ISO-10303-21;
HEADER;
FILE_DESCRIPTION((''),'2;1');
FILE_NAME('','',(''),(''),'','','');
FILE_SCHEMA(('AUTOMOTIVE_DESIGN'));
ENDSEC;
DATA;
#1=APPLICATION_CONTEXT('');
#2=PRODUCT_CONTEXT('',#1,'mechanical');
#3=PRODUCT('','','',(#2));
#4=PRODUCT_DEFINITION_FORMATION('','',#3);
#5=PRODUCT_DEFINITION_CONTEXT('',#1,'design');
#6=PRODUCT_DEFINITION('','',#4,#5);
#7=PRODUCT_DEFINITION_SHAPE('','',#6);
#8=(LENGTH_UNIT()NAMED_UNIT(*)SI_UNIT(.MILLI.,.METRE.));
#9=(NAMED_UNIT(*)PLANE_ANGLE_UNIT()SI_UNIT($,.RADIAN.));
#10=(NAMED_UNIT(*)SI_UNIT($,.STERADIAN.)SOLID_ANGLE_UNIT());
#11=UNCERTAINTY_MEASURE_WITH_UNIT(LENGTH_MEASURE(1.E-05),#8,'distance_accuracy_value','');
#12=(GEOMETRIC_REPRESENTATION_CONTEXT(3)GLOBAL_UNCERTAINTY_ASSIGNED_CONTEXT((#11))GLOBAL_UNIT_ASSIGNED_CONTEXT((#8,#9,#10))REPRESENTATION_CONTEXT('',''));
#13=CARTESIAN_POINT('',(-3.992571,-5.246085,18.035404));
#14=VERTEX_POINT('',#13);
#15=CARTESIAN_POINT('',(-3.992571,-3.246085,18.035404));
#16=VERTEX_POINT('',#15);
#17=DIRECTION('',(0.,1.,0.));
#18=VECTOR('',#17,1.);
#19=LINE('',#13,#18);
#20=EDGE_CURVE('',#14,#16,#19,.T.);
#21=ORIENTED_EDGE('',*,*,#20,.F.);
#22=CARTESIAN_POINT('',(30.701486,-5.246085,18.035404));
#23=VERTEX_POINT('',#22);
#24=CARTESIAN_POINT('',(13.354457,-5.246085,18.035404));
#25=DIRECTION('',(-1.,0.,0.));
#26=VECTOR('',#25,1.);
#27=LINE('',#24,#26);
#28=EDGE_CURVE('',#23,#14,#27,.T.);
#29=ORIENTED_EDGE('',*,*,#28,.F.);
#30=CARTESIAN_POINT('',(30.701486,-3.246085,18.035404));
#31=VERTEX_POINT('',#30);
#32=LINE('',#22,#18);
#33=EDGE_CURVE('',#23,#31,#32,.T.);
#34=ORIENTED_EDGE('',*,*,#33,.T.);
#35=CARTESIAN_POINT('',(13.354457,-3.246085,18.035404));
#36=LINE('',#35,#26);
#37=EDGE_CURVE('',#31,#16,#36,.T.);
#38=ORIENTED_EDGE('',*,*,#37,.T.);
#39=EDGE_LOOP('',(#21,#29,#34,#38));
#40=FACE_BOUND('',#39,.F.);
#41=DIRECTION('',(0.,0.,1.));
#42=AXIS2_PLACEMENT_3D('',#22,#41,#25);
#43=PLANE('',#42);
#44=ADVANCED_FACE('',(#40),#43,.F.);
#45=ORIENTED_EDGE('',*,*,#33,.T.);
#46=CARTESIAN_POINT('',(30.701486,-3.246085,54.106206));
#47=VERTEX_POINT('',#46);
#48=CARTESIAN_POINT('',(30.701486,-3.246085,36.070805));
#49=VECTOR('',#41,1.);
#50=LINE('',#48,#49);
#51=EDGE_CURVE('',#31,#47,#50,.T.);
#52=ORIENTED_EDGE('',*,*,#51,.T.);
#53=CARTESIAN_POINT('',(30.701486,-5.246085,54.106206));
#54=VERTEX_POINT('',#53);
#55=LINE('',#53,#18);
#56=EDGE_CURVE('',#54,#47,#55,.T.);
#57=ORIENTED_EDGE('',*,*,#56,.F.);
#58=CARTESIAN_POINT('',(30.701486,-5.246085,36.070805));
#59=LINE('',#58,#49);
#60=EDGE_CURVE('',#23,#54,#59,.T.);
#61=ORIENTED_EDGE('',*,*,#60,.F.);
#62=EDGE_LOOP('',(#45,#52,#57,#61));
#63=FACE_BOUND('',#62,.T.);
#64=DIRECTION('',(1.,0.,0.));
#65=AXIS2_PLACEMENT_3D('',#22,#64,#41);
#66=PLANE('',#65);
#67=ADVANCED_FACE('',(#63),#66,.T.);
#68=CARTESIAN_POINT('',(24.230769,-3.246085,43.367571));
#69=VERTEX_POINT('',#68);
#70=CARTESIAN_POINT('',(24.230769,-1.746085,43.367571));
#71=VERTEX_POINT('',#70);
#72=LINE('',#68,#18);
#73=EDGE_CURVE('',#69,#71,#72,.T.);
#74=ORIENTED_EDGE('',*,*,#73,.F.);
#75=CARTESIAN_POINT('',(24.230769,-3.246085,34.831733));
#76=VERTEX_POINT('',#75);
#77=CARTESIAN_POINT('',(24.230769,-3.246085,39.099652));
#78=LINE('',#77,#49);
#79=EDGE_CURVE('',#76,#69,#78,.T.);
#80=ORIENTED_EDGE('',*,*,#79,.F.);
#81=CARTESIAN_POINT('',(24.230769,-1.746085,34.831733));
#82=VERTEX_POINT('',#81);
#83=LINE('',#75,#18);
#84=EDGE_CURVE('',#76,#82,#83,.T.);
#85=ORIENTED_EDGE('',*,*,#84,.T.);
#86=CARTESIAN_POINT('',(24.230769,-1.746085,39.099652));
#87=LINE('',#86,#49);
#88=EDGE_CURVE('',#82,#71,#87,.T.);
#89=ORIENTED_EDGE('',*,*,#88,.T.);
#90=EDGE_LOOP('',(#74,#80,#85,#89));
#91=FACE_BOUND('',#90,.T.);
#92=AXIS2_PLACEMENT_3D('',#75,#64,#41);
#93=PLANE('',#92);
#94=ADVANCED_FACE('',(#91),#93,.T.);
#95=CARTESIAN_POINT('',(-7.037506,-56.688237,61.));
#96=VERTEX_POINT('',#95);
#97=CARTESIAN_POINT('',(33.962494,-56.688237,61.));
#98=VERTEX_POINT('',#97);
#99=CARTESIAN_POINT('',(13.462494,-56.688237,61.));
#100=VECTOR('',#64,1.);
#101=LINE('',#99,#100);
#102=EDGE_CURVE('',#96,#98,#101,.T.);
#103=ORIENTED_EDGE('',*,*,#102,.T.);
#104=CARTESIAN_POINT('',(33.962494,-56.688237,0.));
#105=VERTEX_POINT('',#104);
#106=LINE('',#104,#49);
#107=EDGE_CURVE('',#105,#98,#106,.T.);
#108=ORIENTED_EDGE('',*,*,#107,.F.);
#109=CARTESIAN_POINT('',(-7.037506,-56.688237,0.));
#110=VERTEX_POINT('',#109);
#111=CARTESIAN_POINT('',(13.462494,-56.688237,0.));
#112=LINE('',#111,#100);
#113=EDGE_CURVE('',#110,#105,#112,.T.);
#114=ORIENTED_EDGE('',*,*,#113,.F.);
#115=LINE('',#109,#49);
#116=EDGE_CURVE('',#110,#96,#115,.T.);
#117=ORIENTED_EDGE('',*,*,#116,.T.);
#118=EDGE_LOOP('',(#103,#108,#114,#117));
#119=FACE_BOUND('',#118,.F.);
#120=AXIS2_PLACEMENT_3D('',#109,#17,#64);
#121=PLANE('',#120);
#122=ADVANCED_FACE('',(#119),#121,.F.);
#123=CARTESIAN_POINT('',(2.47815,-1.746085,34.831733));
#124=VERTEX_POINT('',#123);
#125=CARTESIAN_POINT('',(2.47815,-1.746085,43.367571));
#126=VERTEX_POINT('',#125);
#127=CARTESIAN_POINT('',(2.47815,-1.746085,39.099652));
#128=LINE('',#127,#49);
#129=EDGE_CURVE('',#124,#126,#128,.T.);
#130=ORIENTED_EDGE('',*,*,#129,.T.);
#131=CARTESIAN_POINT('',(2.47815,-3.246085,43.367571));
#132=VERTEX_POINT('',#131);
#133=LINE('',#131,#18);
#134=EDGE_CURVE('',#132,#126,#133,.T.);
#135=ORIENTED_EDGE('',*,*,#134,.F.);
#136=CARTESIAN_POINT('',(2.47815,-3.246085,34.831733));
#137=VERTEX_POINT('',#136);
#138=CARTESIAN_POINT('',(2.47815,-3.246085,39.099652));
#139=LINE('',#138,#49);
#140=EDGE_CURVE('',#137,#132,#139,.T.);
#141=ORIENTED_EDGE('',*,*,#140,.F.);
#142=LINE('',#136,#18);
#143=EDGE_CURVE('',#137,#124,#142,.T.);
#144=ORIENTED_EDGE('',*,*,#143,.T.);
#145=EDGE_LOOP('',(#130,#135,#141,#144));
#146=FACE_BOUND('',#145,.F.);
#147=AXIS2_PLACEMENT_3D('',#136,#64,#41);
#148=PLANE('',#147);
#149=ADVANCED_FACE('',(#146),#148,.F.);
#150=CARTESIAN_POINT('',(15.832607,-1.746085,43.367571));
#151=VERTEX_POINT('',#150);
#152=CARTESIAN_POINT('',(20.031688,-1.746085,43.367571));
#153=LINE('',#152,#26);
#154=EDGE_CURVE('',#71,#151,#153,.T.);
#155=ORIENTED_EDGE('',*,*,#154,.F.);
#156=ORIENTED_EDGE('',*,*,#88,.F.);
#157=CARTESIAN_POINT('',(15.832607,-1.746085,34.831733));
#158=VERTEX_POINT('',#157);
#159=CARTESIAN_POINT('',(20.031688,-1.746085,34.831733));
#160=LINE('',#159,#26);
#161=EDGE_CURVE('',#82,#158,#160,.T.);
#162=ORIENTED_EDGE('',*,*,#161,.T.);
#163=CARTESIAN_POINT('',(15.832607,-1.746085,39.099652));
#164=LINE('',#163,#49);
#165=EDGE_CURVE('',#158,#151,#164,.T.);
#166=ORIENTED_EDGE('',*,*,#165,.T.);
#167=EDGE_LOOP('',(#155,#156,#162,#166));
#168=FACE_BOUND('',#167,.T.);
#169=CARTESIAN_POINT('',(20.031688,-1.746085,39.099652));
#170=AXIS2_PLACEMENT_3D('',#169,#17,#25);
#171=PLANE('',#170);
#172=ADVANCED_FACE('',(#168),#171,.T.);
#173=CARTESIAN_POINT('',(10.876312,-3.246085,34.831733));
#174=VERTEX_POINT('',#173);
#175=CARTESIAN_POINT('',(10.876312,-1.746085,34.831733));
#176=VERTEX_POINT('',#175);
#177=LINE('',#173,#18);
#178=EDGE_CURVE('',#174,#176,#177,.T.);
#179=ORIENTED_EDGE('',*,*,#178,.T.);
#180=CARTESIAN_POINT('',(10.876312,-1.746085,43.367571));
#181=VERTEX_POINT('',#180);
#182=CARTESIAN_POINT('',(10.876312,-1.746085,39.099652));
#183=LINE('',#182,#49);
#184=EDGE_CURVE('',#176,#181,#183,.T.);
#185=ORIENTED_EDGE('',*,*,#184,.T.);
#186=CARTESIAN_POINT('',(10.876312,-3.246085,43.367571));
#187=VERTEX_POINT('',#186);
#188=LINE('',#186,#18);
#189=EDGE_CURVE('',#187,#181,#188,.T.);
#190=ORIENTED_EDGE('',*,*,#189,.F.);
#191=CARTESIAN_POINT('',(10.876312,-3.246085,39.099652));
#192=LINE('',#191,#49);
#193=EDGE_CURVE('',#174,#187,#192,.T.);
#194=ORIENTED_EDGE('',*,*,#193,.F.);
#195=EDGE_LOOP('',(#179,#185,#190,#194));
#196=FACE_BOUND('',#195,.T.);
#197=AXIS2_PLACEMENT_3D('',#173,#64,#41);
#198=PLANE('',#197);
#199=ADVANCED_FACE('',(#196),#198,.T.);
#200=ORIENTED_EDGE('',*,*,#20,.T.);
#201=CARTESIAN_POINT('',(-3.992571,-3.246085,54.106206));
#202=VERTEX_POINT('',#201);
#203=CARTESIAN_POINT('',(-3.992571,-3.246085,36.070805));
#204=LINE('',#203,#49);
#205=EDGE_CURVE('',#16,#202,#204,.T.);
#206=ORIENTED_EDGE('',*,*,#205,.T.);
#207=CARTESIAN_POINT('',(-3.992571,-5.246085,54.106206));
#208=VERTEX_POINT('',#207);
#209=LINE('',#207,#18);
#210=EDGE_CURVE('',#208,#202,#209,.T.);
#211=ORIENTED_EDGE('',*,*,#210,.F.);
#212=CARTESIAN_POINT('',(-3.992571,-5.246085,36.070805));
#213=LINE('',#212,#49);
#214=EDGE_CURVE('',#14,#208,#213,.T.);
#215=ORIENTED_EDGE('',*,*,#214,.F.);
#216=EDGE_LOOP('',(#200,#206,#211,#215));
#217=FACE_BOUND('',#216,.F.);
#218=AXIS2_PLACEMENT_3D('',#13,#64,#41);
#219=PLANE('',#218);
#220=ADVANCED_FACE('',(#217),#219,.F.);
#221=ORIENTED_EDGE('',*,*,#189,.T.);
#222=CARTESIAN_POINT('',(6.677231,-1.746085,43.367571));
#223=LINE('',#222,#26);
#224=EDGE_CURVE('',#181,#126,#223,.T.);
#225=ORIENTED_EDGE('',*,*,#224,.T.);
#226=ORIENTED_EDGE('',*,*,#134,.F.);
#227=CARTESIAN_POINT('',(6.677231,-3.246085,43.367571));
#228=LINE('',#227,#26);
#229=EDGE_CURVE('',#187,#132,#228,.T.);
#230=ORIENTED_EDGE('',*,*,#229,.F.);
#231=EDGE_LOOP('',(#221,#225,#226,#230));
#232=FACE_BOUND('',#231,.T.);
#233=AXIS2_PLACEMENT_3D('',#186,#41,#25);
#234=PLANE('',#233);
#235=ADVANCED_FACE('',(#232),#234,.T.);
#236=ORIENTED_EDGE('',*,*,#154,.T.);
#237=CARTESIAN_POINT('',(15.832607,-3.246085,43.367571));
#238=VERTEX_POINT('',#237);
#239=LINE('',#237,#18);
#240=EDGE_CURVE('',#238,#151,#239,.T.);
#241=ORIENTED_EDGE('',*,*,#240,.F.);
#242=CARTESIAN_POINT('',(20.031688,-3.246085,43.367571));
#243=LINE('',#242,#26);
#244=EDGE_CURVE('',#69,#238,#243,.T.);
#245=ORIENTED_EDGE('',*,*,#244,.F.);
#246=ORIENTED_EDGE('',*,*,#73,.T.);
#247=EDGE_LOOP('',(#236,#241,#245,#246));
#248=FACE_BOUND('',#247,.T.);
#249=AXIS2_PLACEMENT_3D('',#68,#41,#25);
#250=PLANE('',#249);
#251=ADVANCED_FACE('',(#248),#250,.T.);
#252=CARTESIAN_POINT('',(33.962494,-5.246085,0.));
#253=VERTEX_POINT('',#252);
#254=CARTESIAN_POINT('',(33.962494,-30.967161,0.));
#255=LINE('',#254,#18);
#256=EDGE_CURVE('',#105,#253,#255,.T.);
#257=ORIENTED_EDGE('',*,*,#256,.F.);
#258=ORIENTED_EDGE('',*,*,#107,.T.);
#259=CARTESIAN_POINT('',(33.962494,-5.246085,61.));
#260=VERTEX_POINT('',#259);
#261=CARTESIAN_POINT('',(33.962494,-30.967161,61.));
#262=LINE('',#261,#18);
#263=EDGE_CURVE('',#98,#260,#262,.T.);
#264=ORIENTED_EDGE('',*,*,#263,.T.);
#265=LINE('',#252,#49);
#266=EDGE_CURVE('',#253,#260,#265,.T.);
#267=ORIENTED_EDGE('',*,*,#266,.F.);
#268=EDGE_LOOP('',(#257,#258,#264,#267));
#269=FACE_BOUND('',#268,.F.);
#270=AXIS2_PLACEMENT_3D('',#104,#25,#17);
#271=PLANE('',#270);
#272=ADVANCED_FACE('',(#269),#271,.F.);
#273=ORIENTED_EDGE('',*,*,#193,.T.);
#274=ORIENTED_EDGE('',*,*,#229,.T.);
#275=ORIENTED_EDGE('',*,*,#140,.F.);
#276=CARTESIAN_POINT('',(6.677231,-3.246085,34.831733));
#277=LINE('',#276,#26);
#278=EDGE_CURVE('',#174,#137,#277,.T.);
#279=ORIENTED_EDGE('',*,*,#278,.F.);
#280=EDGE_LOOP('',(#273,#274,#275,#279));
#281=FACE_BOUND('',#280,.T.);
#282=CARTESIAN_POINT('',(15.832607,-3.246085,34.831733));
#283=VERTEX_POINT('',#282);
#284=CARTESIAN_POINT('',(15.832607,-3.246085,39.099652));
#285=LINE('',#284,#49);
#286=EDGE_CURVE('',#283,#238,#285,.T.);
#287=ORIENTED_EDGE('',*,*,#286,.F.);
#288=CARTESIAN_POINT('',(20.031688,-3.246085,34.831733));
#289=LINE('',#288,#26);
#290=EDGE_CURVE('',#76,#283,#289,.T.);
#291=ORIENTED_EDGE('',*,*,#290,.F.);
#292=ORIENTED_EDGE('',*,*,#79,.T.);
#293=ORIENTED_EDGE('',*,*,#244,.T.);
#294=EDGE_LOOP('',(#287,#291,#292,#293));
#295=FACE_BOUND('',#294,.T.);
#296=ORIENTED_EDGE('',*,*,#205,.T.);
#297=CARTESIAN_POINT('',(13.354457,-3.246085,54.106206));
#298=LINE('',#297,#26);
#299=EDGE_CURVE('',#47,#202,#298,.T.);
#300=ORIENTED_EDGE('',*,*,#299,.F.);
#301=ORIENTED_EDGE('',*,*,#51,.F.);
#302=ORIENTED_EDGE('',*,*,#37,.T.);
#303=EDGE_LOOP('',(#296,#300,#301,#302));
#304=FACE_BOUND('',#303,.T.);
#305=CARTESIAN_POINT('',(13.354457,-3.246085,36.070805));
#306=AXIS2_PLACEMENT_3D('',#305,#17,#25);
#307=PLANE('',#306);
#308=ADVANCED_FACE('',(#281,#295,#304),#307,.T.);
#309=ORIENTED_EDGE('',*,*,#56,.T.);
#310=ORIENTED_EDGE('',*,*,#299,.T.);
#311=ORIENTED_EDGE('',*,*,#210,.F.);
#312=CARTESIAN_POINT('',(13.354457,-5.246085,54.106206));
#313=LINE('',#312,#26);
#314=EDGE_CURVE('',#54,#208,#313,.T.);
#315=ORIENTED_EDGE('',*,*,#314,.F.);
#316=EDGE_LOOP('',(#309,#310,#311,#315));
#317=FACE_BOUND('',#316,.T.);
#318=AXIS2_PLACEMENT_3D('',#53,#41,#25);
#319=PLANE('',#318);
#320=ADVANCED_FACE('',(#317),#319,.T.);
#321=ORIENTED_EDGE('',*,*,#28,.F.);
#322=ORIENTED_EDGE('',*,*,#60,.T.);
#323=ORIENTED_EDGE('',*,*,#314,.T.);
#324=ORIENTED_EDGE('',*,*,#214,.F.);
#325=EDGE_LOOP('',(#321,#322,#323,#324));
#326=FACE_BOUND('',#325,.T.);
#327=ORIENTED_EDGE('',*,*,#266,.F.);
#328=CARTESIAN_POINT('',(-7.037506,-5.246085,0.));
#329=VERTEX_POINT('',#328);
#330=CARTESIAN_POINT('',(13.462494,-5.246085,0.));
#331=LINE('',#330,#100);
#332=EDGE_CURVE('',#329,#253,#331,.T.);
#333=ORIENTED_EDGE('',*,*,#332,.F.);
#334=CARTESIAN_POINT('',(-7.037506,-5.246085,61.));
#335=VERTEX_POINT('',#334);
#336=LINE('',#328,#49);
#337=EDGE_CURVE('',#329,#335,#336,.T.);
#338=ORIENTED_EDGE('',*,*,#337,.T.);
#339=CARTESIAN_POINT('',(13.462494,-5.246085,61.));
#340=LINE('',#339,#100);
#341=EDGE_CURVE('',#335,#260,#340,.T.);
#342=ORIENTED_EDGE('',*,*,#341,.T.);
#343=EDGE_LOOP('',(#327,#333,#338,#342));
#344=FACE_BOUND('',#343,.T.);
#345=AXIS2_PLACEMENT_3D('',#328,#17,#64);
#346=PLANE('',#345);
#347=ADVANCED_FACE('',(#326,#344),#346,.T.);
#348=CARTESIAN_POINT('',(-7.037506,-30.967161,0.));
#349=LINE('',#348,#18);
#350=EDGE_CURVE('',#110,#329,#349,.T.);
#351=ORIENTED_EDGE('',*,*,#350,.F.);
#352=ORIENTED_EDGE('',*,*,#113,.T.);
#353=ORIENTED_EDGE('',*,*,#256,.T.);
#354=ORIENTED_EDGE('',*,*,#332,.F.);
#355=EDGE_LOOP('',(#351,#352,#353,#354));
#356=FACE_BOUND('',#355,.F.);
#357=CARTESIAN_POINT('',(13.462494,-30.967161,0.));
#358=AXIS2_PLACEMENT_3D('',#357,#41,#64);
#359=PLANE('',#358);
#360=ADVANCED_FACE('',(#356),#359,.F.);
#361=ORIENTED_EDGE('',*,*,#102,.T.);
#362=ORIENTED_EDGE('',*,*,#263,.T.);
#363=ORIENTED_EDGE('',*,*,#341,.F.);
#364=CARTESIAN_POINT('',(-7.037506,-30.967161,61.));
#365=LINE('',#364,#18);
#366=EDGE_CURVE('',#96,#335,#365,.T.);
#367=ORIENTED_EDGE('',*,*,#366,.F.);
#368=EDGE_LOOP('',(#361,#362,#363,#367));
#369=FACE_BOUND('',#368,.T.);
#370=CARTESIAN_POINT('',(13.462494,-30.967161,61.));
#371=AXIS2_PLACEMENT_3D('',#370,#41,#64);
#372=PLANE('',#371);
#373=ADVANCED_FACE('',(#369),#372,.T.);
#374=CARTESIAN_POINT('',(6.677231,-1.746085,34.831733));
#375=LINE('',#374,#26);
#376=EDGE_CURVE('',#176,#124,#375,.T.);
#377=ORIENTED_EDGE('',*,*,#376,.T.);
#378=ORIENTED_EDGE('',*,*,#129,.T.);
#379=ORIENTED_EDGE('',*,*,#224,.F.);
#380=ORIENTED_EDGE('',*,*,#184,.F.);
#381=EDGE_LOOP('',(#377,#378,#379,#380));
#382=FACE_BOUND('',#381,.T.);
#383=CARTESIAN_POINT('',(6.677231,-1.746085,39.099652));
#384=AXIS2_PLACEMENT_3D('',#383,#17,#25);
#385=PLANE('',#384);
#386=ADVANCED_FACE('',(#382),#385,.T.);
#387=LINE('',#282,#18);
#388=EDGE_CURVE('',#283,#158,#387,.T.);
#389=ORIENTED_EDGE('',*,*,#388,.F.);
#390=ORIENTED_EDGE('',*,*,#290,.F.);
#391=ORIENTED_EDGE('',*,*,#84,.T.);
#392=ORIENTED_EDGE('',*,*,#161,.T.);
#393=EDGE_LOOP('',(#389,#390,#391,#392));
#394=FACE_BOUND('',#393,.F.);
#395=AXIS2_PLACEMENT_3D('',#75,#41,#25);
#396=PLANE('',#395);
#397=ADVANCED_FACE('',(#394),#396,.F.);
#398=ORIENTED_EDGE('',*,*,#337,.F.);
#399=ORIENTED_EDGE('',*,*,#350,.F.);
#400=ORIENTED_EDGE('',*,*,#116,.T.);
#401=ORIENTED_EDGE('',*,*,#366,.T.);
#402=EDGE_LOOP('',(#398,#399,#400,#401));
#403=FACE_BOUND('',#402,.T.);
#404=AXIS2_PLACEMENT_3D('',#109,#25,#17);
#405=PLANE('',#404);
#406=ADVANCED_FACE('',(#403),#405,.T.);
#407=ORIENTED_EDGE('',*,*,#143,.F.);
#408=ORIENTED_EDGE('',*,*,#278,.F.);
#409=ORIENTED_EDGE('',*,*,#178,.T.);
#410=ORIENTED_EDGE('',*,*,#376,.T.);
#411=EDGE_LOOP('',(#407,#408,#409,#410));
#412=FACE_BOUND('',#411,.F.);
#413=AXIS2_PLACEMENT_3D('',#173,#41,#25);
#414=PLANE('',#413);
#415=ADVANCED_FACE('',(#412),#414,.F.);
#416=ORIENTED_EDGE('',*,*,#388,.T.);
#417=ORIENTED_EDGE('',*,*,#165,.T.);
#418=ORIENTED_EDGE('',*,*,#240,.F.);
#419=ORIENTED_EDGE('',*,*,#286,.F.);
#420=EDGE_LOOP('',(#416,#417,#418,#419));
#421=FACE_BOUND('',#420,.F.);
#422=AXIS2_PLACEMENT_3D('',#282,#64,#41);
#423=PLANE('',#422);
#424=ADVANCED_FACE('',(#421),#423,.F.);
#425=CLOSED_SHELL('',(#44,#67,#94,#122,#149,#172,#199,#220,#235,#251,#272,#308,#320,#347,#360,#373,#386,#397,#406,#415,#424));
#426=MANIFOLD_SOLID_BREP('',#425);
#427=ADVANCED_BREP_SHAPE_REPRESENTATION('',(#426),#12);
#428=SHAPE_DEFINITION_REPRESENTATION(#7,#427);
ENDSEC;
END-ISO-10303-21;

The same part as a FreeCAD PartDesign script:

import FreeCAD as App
import Part
import Sketcher
Q = App.Units.Quantity


def add_polygon(sketch, points):
    """Adds a closed chain of lines whose ends are joined by coincident constraints."""
    first, n = sketch.GeometryCount, len(points)
    for a, b in zip(points, points[1:] + points[:1]):
        sketch.addGeometry(Part.LineSegment(App.Vector(*a, 0), App.Vector(*b, 0)), False)
    for i in range(n):
        sketch.addConstraint(Sketcher.Constraint("Coincident", first + i, 2, first + (i + 1) % n, 1))

doc = App.newDocument("Part")
body = doc.addObject("PartDesign::Body", "Body")

# Sketch on XY plane
sketch1 = body.newObject("Sketcher::SketchObject", "Sketch")
sketch1.AttachmentSupport = (doc.getObject("XY_Plane"), [""])
sketch1.MapMode = "FlatFace"
add_polygon(sketch1, [(-7, -5), (-7, -57), (34, -57), (34, -5)])  # lines 0-3
sketch1.addConstraint(Sketcher.Constraint("Vertical", 0))
sketch1.addConstraint(Sketcher.Constraint("Horizontal", 1))
sketch1.addConstraint(Sketcher.Constraint("Vertical", 2))
sketch1.addConstraint(Sketcher.Constraint("Horizontal", 3))
sketch1.addConstraint(Sketcher.Constraint("DistanceX", 1, 1, 1, 2, Q("41 mm")))
sketch1.addConstraint(Sketcher.Constraint("DistanceY", 0, 2, 0, 1, Q("51.442152 mm")))
sketch1.addConstraint(Sketcher.Constraint("DistanceX", 0, 2, -1, 1, Q("7.037506 mm")))
sketch1.addConstraint(Sketcher.Constraint("DistanceY", 0, 2, -1, 1, Q("56.688237 mm")))
pad1 = body.newObject("PartDesign::Pad", "Pad")
pad1.Profile = sketch1
pad1.Length = 61

# Sketch on XZ plane
sketch2 = body.newObject("Sketcher::SketchObject", "Sketch001")
sketch2.AttachmentSupport = (doc.getObject("XZ_Plane"), [""])
sketch2.MapMode = "FlatFace"
sketch2.AttachmentOffset = App.Placement(App.Vector(0, 0, 5.246085), App.Rotation())
add_polygon(sketch2, [(31, 54), (31, 18), (-4, 18), (-4, 54)])  # lines 0-3
sketch2.addConstraint(Sketcher.Constraint("Vertical", 0))
sketch2.addConstraint(Sketcher.Constraint("Horizontal", 1))
sketch2.addConstraint(Sketcher.Constraint("Vertical", 2))
sketch2.addConstraint(Sketcher.Constraint("Horizontal", 3))
sketch2.addConstraint(Sketcher.Constraint("DistanceX", 1, 2, 1, 1, Q("34.694057 mm")))
sketch2.addConstraint(Sketcher.Constraint("DistanceY", 0, 2, 0, 1, Q("36.070803 mm")))
sketch2.addConstraint(Sketcher.Constraint("DistanceX", 1, 2, -1, 1, Q("3.992571 mm")))
sketch2.addConstraint(Sketcher.Constraint("DistanceY", -1, 1, 0, 2, Q("18.035404 mm")))
pad2 = body.newObject("PartDesign::Pad", "Pad001")
pad2.Profile = sketch2
pad2.Length = 2
pad2.Reversed = True

# Sketch on XZ plane
sketch3 = body.newObject("Sketcher::SketchObject", "Sketch002")
sketch3.AttachmentSupport = (doc.getObject("XZ_Plane"), [""])
sketch3.MapMode = "FlatFace"
sketch3.AttachmentOffset = App.Placement(App.Vector(0, 0, 3.246085), App.Rotation())
add_polygon(sketch3, [(24, 43), (24, 35), (16, 35), (16, 43)])  # lines 0-3
add_polygon(sketch3, [(11, 43), (11, 35), (2, 35), (2, 43)])  # lines 4-7
sketch3.addConstraint(Sketcher.Constraint("Vertical", 0))
sketch3.addConstraint(Sketcher.Constraint("Horizontal", 1))
sketch3.addConstraint(Sketcher.Constraint("Vertical", 2))
sketch3.addConstraint(Sketcher.Constraint("Horizontal", 3))
sketch3.addConstraint(Sketcher.Constraint("Vertical", 4))
sketch3.addConstraint(Sketcher.Constraint("Horizontal", 5))
sketch3.addConstraint(Sketcher.Constraint("Vertical", 6))
sketch3.addConstraint(Sketcher.Constraint("Horizontal", 7))
sketch3.addConstraint(Sketcher.Constraint("Horizontal", 1, 2, 4, 2))
sketch3.addConstraint(Sketcher.Constraint("Horizontal", 3, 2, 6, 2))
sketch3.addConstraint(Sketcher.Constraint("Equal", 3, 5))
sketch3.addConstraint(Sketcher.Constraint("DistanceX", 1, 2, 1, 1, Q("8.398162 mm")))
sketch3.addConstraint(Sketcher.Constraint("DistanceY", 0, 2, 0, 1, Q("8.535839 mm")))
sketch3.addConstraint(Sketcher.Constraint("DistanceX", -1, 1, 0, 2, Q("24.230769 mm")))
sketch3.addConstraint(Sketcher.Constraint("DistanceY", -1, 1, 2, 2, Q("43.367571 mm")))
sketch3.addConstraint(Sketcher.Constraint("DistanceX", -1, 1, 5, 2, Q("2.47815 mm")))
pad3 = body.newObject("PartDesign::Pad", "Pad002")
pad3.Profile = sketch3
pad3.Length = 1.5
pad3.Reversed = True

doc.recompute()
